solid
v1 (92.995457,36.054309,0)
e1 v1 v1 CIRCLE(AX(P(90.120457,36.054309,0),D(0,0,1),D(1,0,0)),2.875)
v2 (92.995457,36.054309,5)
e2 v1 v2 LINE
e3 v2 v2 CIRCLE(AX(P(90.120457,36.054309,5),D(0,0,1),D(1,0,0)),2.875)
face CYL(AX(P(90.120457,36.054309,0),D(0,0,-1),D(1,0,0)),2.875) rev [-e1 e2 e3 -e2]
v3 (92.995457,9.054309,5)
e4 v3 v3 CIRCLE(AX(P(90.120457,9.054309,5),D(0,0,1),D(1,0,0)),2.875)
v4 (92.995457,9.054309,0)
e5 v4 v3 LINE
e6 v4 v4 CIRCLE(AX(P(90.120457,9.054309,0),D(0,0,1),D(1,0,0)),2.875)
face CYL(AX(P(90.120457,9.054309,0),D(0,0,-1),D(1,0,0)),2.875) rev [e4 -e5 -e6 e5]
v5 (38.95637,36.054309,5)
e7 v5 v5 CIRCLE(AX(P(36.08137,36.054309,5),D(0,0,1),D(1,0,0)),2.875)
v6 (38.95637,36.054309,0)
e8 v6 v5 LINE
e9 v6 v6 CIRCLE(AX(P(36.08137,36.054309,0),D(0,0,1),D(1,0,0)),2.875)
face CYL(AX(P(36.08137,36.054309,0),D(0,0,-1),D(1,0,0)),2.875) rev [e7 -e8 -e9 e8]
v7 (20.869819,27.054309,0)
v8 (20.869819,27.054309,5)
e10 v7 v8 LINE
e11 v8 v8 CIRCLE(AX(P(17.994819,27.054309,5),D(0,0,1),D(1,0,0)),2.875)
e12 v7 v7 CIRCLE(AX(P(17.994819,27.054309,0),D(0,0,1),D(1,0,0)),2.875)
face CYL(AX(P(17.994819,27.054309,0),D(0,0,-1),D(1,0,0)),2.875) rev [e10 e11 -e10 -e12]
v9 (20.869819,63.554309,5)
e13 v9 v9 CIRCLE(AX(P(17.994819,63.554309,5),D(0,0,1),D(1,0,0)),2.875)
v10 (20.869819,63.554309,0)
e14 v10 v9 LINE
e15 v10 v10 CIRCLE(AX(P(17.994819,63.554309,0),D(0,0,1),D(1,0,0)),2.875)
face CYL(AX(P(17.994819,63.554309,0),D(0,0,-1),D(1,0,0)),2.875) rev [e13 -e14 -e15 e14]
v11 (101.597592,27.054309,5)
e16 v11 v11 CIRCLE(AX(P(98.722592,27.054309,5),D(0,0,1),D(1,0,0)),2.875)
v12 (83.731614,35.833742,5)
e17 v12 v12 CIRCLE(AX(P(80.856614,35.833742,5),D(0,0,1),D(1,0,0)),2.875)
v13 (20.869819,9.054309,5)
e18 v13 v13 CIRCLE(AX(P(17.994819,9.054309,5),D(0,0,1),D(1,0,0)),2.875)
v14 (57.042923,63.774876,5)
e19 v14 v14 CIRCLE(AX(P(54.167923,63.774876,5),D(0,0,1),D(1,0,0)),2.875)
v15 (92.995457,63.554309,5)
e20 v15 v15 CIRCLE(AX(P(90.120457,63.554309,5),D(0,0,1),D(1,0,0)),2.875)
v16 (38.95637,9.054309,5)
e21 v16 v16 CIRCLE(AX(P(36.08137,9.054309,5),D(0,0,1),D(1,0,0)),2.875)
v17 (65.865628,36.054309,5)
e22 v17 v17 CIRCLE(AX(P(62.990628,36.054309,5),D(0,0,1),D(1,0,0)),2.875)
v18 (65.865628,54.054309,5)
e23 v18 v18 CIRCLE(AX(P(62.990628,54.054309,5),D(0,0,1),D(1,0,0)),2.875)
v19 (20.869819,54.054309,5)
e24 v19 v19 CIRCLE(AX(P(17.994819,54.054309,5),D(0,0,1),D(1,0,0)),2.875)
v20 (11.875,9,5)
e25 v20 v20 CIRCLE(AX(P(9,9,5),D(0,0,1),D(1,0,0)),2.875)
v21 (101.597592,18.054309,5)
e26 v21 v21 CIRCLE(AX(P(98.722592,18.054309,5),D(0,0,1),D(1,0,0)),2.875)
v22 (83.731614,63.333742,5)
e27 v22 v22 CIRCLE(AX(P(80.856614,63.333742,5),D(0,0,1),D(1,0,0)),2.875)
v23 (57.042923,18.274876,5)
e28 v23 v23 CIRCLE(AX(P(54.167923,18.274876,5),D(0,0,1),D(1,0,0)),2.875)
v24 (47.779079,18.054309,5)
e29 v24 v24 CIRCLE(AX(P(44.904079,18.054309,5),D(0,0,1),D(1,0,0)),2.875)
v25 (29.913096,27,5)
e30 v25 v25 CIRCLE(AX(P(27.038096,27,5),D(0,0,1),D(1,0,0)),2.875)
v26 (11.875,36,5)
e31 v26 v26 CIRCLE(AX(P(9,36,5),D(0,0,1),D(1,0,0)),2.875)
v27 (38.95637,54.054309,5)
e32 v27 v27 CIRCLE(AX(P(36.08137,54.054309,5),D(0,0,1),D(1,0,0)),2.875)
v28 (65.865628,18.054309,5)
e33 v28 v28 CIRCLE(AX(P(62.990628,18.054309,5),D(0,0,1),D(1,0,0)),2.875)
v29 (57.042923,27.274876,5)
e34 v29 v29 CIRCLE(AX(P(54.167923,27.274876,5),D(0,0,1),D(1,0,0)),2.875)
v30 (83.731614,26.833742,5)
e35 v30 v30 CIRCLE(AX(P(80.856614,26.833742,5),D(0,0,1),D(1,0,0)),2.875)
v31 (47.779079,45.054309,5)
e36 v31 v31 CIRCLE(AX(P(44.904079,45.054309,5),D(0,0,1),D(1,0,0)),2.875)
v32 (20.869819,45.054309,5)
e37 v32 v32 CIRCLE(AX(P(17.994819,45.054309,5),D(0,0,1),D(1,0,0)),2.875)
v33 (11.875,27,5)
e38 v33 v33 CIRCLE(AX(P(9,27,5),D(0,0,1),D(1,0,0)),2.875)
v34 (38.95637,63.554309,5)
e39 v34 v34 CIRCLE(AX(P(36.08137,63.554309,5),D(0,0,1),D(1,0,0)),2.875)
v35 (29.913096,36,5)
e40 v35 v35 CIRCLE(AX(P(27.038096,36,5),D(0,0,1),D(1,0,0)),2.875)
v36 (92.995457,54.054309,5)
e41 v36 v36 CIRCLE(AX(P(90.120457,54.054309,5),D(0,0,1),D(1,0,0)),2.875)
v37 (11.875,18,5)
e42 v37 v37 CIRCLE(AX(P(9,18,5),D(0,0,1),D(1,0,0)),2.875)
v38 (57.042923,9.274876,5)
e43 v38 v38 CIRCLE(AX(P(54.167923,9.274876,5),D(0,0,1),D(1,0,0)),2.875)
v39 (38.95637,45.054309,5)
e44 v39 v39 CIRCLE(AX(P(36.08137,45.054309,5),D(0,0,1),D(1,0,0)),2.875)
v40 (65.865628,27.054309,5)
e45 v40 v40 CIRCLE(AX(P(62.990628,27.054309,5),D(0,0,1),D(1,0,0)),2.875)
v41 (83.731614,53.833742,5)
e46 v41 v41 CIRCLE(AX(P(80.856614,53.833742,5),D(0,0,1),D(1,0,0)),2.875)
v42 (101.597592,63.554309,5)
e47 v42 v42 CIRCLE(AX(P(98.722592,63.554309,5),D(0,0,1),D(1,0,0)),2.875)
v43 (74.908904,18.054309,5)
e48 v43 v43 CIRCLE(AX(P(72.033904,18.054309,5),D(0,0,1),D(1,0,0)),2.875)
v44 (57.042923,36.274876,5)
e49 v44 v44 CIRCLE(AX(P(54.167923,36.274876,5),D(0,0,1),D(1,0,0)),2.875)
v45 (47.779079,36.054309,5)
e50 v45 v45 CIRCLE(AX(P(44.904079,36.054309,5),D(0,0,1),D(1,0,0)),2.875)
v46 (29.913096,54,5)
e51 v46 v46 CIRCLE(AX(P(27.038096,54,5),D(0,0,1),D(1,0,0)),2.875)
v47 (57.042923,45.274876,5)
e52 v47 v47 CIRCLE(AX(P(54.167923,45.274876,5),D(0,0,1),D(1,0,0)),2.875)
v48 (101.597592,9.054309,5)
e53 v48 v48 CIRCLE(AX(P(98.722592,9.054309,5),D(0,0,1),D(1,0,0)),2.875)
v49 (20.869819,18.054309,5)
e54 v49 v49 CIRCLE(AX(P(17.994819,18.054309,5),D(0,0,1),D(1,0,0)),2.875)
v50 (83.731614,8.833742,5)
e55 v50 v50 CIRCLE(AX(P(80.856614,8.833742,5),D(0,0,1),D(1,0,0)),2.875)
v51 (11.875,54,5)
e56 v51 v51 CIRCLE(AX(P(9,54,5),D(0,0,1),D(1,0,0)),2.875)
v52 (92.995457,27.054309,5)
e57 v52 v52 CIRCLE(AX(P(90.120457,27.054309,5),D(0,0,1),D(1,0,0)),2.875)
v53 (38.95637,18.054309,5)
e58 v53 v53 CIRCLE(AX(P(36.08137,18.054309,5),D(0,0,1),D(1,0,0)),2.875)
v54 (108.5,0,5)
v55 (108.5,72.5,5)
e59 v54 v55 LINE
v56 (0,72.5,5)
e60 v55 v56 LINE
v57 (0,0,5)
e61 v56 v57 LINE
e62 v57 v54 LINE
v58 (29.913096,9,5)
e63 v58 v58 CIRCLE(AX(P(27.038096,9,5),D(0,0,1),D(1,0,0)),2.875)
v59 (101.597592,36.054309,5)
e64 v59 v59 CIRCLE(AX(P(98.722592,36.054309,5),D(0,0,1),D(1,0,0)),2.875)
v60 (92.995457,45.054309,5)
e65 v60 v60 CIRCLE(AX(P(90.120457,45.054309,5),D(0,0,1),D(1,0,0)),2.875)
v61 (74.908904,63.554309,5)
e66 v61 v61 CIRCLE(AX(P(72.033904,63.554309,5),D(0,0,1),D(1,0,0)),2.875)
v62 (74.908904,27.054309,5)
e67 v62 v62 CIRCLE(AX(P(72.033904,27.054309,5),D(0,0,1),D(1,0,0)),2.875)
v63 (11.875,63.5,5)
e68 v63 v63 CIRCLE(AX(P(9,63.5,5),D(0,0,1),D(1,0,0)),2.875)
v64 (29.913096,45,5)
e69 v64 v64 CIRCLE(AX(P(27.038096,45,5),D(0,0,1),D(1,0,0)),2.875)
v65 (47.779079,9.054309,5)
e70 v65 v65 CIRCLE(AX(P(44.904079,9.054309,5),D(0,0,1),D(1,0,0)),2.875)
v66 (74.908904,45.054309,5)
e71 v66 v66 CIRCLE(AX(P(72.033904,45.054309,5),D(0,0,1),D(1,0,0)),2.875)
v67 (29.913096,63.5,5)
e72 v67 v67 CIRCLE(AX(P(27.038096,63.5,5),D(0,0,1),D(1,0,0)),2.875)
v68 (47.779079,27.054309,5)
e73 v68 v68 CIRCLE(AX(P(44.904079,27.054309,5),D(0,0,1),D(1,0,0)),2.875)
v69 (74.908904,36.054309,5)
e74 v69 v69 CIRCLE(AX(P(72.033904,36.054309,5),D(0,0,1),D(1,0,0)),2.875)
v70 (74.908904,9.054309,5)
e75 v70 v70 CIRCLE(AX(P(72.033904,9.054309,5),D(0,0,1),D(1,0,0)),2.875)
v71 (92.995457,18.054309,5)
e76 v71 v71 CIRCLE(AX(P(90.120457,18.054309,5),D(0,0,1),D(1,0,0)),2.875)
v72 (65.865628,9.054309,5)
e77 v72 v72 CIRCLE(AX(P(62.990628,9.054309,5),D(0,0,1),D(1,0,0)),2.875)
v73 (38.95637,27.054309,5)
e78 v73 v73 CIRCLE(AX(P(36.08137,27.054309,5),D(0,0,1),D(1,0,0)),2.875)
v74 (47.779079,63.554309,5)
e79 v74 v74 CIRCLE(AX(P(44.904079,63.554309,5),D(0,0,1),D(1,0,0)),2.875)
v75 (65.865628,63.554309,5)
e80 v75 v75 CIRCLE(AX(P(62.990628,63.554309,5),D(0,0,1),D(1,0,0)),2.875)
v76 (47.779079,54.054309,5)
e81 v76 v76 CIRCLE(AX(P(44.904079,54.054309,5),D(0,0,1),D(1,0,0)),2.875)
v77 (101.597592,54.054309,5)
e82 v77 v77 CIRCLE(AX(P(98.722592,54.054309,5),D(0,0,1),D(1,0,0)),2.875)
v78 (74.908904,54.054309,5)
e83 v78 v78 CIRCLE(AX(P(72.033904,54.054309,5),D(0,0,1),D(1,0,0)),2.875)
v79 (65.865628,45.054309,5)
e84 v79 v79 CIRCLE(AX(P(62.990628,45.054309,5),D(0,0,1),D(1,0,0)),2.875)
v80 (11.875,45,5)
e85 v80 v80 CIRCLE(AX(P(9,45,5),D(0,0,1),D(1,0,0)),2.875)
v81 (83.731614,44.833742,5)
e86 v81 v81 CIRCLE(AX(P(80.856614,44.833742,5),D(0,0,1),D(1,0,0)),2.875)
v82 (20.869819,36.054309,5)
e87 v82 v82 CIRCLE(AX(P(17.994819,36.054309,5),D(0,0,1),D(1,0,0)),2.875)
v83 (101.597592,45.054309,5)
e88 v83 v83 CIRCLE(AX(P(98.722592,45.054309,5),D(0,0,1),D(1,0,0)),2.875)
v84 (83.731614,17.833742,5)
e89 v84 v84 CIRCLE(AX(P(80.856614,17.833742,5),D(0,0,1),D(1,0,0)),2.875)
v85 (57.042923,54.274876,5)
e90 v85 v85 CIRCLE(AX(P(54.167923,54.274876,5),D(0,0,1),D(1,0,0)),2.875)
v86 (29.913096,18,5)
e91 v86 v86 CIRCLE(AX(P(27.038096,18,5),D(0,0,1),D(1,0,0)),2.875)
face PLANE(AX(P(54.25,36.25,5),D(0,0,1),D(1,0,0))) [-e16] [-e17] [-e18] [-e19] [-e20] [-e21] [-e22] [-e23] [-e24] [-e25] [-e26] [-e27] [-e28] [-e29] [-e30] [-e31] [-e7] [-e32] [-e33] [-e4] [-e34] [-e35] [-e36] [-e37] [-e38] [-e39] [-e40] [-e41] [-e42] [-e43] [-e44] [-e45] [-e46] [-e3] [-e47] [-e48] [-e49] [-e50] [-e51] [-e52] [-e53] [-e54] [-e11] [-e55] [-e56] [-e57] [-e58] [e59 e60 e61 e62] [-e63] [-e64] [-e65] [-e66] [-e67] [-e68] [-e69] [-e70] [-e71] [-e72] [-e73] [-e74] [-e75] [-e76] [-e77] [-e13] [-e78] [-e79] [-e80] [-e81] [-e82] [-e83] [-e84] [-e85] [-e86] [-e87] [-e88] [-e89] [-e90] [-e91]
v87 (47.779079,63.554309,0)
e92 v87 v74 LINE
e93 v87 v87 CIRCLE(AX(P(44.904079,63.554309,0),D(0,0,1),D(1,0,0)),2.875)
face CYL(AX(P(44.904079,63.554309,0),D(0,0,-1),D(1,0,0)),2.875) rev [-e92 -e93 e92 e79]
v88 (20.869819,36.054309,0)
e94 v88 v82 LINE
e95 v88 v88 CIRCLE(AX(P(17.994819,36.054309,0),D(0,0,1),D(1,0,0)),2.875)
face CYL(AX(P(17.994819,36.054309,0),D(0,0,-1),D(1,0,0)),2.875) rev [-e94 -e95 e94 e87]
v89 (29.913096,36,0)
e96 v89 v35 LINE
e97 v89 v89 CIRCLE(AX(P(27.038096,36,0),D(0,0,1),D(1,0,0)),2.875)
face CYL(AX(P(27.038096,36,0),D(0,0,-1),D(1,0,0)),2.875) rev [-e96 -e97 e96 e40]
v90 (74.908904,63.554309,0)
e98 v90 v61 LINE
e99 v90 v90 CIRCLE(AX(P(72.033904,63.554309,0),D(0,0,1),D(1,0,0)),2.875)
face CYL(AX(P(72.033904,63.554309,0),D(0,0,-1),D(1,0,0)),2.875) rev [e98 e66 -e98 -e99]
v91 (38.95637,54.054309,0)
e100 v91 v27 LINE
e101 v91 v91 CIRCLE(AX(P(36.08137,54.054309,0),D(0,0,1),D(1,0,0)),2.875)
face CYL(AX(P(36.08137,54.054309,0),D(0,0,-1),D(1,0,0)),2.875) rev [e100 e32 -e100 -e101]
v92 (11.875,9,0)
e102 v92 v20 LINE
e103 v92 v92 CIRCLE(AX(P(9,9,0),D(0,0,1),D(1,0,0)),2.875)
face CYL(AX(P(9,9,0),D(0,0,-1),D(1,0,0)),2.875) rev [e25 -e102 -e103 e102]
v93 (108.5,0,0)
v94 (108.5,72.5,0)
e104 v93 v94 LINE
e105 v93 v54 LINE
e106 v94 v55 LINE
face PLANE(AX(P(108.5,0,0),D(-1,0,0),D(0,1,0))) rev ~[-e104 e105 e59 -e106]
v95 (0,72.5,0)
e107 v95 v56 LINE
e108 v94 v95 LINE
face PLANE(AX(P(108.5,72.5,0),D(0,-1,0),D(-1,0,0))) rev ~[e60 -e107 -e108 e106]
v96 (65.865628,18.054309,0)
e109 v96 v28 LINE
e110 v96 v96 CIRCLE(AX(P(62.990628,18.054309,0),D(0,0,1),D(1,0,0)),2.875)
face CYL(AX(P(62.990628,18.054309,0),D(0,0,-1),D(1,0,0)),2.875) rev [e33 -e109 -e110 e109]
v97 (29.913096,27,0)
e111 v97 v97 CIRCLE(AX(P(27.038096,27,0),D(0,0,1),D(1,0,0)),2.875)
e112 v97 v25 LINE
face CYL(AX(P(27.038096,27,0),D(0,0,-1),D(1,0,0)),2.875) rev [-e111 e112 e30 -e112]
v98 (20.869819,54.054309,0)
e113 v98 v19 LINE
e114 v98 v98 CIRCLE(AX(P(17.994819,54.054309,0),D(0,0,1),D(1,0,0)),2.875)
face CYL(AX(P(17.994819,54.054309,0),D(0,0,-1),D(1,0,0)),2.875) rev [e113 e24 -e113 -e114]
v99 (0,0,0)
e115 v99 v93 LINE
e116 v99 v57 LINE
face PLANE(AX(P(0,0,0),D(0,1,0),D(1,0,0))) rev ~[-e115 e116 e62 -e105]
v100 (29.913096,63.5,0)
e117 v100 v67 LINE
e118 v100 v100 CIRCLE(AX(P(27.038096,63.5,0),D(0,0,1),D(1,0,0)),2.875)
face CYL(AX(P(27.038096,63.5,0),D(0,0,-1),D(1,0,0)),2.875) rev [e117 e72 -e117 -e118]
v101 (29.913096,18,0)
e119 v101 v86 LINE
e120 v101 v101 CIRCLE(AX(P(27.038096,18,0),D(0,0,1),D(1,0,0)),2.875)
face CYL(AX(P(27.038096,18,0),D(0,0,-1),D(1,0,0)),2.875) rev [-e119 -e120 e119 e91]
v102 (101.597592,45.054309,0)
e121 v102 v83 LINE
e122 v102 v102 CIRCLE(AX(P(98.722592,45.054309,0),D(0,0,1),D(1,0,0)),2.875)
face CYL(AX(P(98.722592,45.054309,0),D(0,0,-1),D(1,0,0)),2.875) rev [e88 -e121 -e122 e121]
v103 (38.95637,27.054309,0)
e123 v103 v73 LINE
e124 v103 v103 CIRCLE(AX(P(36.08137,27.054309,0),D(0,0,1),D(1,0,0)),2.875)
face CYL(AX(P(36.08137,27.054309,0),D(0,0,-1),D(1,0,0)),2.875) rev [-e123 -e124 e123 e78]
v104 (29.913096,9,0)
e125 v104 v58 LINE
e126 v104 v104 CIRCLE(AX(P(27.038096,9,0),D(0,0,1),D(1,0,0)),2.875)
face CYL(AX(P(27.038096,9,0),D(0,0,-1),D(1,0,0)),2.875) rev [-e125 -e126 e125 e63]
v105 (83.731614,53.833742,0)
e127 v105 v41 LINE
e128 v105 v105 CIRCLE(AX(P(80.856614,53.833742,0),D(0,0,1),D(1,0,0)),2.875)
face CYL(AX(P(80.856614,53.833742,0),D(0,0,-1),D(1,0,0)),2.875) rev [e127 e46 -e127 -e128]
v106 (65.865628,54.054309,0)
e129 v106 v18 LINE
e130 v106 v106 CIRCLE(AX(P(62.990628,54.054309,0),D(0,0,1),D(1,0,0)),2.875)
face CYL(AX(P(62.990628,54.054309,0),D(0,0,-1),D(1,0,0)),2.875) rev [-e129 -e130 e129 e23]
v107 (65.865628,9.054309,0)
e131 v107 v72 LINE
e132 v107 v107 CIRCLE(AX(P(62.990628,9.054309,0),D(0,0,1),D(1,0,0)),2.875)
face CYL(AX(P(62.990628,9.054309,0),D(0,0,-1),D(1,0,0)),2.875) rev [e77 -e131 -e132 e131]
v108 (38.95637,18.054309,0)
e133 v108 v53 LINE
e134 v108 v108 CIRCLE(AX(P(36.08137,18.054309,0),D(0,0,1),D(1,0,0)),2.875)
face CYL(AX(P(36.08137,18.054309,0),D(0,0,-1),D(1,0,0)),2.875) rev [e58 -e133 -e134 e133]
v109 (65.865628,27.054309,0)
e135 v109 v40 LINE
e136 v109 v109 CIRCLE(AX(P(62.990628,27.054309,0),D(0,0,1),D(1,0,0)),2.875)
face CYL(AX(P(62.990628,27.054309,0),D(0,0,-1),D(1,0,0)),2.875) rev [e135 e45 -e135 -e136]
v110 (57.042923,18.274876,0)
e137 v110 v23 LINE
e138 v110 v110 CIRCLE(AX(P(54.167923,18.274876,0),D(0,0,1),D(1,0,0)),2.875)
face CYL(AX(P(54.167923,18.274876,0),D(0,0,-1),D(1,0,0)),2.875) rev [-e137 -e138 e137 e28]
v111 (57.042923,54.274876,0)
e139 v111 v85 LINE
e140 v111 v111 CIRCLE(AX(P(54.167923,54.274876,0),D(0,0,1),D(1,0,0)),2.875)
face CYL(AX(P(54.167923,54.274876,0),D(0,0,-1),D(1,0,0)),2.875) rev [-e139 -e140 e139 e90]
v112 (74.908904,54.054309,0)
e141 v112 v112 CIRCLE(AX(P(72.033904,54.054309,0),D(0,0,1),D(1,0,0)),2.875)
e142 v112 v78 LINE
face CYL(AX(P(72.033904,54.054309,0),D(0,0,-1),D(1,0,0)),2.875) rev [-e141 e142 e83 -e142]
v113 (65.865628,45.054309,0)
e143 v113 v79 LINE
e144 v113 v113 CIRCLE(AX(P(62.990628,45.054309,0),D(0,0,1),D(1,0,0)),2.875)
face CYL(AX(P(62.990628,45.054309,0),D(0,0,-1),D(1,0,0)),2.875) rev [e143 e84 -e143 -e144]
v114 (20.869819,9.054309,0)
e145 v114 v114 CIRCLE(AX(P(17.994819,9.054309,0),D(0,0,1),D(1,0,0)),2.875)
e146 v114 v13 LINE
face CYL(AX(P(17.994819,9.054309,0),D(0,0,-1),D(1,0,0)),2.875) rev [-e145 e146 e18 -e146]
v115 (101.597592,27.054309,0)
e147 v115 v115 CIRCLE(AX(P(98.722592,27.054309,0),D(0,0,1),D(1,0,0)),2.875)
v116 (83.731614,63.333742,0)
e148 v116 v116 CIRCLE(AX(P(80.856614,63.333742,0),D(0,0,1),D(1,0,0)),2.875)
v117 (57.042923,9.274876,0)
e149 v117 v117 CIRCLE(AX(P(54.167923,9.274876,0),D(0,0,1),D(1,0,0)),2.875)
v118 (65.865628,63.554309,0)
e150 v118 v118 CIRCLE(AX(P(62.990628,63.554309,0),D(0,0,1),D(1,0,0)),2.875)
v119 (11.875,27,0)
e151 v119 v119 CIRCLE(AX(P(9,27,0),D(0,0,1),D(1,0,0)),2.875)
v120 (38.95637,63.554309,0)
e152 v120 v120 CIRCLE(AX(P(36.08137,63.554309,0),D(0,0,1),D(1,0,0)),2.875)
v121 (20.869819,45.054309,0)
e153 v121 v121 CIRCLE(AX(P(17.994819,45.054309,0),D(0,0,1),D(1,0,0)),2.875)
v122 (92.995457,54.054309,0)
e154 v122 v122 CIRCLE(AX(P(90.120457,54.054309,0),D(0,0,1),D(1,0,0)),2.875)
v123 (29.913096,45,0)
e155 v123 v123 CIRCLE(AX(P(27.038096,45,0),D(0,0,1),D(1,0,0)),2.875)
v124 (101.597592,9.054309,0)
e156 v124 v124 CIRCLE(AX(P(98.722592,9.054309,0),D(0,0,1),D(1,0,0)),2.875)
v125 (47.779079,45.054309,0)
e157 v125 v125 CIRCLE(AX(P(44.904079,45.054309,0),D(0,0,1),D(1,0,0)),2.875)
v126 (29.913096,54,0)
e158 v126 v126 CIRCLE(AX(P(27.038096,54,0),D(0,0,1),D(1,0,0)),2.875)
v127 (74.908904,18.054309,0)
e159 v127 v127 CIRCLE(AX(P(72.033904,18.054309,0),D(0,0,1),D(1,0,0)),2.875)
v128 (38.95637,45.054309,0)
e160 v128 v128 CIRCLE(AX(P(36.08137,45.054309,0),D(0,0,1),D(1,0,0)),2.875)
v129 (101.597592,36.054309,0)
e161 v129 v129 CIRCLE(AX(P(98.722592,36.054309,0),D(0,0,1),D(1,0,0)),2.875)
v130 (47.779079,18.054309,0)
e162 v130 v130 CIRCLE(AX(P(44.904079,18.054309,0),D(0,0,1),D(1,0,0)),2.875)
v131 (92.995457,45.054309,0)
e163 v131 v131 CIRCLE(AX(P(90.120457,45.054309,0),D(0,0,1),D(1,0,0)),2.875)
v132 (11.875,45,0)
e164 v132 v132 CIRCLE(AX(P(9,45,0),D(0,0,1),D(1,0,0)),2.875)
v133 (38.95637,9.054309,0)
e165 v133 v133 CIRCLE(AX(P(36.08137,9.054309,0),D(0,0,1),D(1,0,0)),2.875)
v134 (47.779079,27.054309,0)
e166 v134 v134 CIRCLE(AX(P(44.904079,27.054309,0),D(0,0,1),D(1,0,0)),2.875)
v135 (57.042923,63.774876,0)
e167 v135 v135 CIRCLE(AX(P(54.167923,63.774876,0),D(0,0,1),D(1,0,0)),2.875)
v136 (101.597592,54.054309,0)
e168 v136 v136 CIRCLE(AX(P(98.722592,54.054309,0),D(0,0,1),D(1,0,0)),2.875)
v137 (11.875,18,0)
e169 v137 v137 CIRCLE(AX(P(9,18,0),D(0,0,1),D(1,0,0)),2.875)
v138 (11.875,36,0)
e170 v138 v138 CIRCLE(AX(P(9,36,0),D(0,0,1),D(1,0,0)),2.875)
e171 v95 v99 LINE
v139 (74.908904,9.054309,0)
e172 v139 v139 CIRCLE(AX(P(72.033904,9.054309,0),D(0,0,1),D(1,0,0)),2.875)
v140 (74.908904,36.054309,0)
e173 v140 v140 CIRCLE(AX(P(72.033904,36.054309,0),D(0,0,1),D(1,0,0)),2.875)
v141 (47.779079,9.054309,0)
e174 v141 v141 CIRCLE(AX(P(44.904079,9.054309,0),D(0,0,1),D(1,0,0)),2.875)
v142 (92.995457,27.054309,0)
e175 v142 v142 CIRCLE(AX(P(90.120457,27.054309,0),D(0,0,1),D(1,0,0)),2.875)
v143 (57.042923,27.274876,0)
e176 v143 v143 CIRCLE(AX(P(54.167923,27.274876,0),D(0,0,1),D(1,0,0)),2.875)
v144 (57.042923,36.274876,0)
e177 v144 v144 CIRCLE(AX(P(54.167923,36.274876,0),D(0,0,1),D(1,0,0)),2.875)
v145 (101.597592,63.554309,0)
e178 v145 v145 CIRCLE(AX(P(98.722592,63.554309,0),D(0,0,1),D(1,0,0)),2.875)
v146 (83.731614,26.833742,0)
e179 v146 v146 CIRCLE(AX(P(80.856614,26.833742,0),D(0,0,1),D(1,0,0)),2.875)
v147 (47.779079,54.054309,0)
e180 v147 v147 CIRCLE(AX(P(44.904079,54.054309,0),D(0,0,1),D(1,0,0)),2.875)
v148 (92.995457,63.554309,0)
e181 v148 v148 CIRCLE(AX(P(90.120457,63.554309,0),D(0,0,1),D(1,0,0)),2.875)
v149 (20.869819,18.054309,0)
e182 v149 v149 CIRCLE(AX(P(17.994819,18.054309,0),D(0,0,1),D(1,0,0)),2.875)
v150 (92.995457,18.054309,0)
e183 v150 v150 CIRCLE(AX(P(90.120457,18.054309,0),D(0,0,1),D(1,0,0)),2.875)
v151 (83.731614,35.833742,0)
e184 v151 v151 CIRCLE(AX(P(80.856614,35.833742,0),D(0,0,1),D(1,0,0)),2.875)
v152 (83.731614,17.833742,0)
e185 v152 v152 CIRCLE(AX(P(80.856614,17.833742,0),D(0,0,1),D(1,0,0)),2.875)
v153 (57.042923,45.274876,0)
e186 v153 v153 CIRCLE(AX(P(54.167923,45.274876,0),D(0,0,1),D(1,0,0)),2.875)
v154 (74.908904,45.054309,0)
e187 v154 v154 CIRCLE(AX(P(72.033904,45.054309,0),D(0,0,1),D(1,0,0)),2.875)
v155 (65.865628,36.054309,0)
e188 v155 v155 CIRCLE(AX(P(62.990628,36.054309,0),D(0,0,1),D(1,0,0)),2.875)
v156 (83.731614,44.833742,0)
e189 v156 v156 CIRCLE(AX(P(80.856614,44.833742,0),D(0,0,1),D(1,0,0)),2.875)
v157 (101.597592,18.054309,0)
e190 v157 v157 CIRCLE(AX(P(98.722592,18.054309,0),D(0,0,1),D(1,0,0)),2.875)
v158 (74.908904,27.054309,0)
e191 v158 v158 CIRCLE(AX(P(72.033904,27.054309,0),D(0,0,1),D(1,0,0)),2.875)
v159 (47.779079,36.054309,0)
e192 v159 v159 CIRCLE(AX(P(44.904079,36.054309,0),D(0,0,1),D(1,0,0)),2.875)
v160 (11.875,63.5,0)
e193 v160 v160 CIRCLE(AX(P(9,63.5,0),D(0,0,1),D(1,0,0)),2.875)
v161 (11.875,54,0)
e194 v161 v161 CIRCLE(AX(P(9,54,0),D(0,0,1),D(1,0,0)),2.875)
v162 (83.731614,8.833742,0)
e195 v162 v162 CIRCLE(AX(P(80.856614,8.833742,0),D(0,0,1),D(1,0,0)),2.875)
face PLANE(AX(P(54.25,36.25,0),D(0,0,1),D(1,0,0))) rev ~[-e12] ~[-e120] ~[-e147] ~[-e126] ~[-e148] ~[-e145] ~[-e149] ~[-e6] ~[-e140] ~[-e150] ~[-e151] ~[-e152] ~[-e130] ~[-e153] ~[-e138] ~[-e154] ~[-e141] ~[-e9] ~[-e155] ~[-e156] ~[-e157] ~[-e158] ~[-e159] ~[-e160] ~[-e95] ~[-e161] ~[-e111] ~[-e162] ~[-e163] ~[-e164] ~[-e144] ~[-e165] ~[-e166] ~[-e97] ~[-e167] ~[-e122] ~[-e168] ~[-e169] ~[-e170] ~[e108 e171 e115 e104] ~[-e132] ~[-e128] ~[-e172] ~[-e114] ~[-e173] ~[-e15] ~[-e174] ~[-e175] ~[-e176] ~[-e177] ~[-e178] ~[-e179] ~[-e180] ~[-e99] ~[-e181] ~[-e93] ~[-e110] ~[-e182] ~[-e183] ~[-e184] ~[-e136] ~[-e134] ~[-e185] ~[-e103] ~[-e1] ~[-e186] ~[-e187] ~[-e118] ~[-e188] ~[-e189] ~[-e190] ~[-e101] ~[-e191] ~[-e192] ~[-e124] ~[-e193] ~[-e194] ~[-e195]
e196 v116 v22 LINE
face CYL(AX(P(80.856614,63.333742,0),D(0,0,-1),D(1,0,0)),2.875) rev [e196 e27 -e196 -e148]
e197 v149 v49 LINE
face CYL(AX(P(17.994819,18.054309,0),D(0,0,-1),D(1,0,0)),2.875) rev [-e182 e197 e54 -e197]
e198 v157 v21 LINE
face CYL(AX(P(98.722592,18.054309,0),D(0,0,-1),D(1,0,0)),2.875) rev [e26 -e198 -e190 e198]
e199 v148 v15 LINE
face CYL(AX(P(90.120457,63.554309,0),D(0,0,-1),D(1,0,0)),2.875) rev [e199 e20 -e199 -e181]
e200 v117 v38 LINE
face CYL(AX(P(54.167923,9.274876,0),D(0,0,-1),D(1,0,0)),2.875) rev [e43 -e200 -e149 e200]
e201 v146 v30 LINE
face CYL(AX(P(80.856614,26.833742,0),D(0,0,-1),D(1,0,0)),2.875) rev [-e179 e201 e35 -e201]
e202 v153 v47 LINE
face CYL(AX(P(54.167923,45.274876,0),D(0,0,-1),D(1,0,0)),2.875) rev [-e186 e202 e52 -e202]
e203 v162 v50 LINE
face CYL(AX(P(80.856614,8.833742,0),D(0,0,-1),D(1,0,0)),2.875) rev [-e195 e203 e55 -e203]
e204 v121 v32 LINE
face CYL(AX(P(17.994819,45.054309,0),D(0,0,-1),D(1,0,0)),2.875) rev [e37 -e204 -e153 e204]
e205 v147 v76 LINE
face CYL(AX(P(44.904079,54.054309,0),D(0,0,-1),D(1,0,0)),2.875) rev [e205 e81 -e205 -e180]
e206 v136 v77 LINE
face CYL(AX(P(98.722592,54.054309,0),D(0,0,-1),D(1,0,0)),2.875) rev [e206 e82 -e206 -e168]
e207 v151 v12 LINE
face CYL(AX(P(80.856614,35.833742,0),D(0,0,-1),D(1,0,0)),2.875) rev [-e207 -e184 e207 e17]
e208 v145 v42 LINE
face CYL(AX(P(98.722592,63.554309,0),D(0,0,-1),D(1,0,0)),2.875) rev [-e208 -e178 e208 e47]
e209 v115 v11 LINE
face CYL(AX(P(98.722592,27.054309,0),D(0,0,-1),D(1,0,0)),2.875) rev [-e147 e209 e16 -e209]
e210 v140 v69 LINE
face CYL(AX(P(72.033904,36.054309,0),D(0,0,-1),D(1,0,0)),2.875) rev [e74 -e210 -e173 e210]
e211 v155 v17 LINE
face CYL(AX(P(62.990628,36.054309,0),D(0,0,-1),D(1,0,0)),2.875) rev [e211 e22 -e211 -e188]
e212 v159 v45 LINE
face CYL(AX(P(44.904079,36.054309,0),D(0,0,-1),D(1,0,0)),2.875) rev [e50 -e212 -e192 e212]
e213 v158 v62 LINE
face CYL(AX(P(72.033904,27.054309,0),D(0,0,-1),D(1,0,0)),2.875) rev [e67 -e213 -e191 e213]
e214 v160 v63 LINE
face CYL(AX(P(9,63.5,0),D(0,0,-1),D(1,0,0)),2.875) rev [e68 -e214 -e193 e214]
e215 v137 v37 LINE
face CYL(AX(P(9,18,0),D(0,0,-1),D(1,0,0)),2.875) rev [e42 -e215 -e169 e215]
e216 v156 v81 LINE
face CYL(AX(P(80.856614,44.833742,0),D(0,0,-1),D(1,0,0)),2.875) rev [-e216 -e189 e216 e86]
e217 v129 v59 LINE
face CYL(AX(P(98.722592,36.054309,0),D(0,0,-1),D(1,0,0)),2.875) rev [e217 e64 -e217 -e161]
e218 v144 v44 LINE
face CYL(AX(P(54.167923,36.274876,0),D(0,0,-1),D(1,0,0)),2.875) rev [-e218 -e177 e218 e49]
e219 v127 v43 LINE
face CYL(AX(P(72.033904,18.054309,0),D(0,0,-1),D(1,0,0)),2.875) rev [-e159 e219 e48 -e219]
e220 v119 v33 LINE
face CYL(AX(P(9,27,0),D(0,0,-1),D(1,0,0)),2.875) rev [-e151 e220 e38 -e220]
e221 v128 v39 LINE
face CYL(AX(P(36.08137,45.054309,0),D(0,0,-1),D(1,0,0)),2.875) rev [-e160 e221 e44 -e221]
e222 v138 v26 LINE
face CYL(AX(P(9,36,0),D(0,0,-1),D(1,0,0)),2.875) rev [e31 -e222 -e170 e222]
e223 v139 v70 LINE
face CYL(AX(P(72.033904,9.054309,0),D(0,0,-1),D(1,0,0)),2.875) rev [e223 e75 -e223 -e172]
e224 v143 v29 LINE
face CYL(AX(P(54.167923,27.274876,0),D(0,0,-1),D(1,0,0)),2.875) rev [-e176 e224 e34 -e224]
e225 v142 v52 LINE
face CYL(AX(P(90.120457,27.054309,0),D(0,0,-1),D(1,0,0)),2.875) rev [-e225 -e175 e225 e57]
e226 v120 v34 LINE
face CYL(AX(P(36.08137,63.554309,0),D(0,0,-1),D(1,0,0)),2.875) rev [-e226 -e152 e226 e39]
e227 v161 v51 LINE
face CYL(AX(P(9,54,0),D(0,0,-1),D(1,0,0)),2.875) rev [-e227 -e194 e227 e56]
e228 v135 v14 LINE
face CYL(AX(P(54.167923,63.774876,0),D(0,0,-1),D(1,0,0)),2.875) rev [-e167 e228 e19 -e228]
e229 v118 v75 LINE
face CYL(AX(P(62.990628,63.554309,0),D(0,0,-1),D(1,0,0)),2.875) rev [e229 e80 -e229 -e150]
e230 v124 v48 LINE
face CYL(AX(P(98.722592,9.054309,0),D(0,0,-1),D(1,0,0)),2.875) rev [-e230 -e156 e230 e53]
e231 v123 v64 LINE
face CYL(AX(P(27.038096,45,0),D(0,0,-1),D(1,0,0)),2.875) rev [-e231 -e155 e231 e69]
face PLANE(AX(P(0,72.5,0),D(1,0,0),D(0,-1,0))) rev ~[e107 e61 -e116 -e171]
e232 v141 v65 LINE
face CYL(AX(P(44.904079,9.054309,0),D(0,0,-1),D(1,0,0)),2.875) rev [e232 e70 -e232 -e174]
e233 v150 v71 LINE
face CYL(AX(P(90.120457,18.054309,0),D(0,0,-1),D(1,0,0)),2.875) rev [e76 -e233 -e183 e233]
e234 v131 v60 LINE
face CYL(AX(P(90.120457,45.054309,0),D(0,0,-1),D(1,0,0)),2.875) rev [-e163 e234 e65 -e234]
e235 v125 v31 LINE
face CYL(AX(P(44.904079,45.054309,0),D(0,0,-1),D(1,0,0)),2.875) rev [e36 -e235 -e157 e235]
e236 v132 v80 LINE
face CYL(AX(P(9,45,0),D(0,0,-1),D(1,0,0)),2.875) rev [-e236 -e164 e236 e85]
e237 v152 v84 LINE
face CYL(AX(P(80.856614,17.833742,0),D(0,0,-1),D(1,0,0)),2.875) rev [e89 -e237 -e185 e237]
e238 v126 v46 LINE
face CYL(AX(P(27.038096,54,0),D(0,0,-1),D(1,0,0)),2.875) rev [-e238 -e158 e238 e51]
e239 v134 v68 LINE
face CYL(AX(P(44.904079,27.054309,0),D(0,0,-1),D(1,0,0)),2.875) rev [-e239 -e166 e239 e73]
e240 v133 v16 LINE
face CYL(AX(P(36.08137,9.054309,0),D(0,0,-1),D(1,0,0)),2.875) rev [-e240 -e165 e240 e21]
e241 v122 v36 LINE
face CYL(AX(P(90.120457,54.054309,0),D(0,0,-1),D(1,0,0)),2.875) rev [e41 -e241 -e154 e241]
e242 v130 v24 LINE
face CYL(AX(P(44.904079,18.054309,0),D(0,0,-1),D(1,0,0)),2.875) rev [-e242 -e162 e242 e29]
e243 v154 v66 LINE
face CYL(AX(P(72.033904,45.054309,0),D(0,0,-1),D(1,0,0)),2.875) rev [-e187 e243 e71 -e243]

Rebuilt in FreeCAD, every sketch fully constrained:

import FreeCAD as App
import Part
import Sketcher

doc = App.newDocument("Part")
params = doc.addObject("Spreadsheet::Sheet", "Params")
for row, (alias, value) in enumerate([
    ("sketch1_diameter", "5.75 mm"),
    ("sketch1_width", "108.5 mm"),
    ("sketch1_height", "72.5 mm"),
    ("pad1_length", "5 mm"),
], start=1):
    params.set(f"A{row}", alias)
    params.set(f"B{row}", "=" + value)
    params.setAlias(f"B{row}", alias)

body = doc.addObject("PartDesign::Body", "Body")

# Sketch on XY plane
sketch1 = body.newObject("Sketcher::SketchObject", "Sketch")
sketch1.AttachmentSupport = (doc.getObject("XY_Plane"), [""])
sketch1.MapMode = "FlatFace"
sketch1.addGeometry([
    Part.LineSegment(App.Vector(0, 0, 0), App.Vector(108.5, 0, 0)),  # 0
    Part.LineSegment(App.Vector(108.5, 0, 0), App.Vector(108.5, 72.5, 0)),  # 1
    Part.LineSegment(App.Vector(108.5, 72.5, 0), App.Vector(0, 72.5, 0)),  # 2
    Part.LineSegment(App.Vector(0, 72.5, 0), App.Vector(0, 0, 0)),  # 3
    Part.Circle(App.Vector(9, 9, 0), App.Vector(0, 0, 1), 2.9),  # 4
    Part.Circle(App.Vector(18, 9.1, 0), App.Vector(0, 0, 1), 2.9),  # 5
    Part.Circle(App.Vector(27, 9, 0), App.Vector(0, 0, 1), 2.9),  # 6
    Part.Circle(App.Vector(9, 18, 0), App.Vector(0, 0, 1), 2.9),  # 7
    Part.Circle(App.Vector(18, 18.1, 0), App.Vector(0, 0, 1), 2.9),  # 8
    Part.Circle(App.Vector(27, 18, 0), App.Vector(0, 0, 1), 2.9),  # 9
    Part.Circle(App.Vector(36.1, 9.1, 0), App.Vector(0, 0, 1), 2.9),  # 10
    Part.Circle(App.Vector(44.9, 9.1, 0), App.Vector(0, 0, 1), 2.9),  # 11
    Part.Circle(App.Vector(36.1, 18.1, 0), App.Vector(0, 0, 1), 2.9),  # 12
    Part.Circle(App.Vector(44.9, 18.1, 0), App.Vector(0, 0, 1), 2.9),  # 13
    Part.Circle(App.Vector(9, 27, 0), App.Vector(0, 0, 1), 2.9),  # 14
    Part.Circle(App.Vector(18, 27.1, 0), App.Vector(0, 0, 1), 2.9),  # 15
    Part.Circle(App.Vector(27, 27, 0), App.Vector(0, 0, 1), 2.9),  # 16
    Part.Circle(App.Vector(9, 36, 0), App.Vector(0, 0, 1), 2.9),  # 17
    Part.Circle(App.Vector(18, 36.1, 0), App.Vector(0, 0, 1), 2.9),  # 18
    Part.Circle(App.Vector(27, 36, 0), App.Vector(0, 0, 1), 2.9),  # 19
    Part.Circle(App.Vector(36.1, 27.1, 0), App.Vector(0, 0, 1), 2.9),  # 20
    Part.Circle(App.Vector(44.9, 27.1, 0), App.Vector(0, 0, 1), 2.9),  # 21
    Part.Circle(App.Vector(36.1, 36.1, 0), App.Vector(0, 0, 1), 2.9),  # 22
    Part.Circle(App.Vector(44.9, 36.1, 0), App.Vector(0, 0, 1), 2.9),  # 23
    Part.Circle(App.Vector(54.2, 9.3, 0), App.Vector(0, 0, 1), 2.9),  # 24
    Part.Circle(App.Vector(63, 9.1, 0), App.Vector(0, 0, 1), 2.9),  # 25
    Part.Circle(App.Vector(72, 9.1, 0), App.Vector(0, 0, 1), 2.9),  # 26
    Part.Circle(App.Vector(54.2, 18.3, 0), App.Vector(0, 0, 1), 2.9),  # 27
    Part.Circle(App.Vector(63, 18.1, 0), App.Vector(0, 0, 1), 2.9),  # 28
    Part.Circle(App.Vector(72, 18.1, 0), App.Vector(0, 0, 1), 2.9),  # 29
    Part.Circle(App.Vector(80.9, 8.8, 0), App.Vector(0, 0, 1), 2.9),  # 30
    Part.Circle(App.Vector(90.1, 9.1, 0), App.Vector(0, 0, 1), 2.9),  # 31
    Part.Circle(App.Vector(98.7, 9.1, 0), App.Vector(0, 0, 1), 2.9),  # 32
    Part.Circle(App.Vector(80.9, 17.8, 0), App.Vector(0, 0, 1), 2.9),  # 33
    Part.Circle(App.Vector(90.1, 18.1, 0), App.Vector(0, 0, 1), 2.9),  # 34
    Part.Circle(App.Vector(98.7, 18.1, 0), App.Vector(0, 0, 1), 2.9),  # 35
    Part.Circle(App.Vector(54.2, 27.3, 0), App.Vector(0, 0, 1), 2.9),  # 36
    Part.Circle(App.Vector(63, 27.1, 0), App.Vector(0, 0, 1), 2.9),  # 37
    Part.Circle(App.Vector(72, 27.1, 0), App.Vector(0, 0, 1), 2.9),  # 38
    Part.Circle(App.Vector(54.2, 36.3, 0), App.Vector(0, 0, 1), 2.9),  # 39
    Part.Circle(App.Vector(63, 36.1, 0), App.Vector(0, 0, 1), 2.9),  # 40
    Part.Circle(App.Vector(72, 36.1, 0), App.Vector(0, 0, 1), 2.9),  # 41
    Part.Circle(App.Vector(80.9, 26.8, 0), App.Vector(0, 0, 1), 2.9),  # 42
    Part.Circle(App.Vector(90.1, 27.1, 0), App.Vector(0, 0, 1), 2.9),  # 43
    Part.Circle(App.Vector(98.7, 27.1, 0), App.Vector(0, 0, 1), 2.9),  # 44
    Part.Circle(App.Vector(80.9, 35.8, 0), App.Vector(0, 0, 1), 2.9),  # 45
    Part.Circle(App.Vector(90.1, 36.1, 0), App.Vector(0, 0, 1), 2.9),  # 46
    Part.Circle(App.Vector(98.7, 36.1, 0), App.Vector(0, 0, 1), 2.9),  # 47
    Part.Circle(App.Vector(9, 45, 0), App.Vector(0, 0, 1), 2.9),  # 48
    Part.Circle(App.Vector(18, 45.1, 0), App.Vector(0, 0, 1), 2.9),  # 49
    Part.Circle(App.Vector(27, 45, 0), App.Vector(0, 0, 1), 2.9),  # 50
    Part.Circle(App.Vector(36.1, 45.1, 0), App.Vector(0, 0, 1), 2.9),  # 51
    Part.Circle(App.Vector(44.9, 45.1, 0), App.Vector(0, 0, 1), 2.9),  # 52
    Part.Circle(App.Vector(9, 54, 0), App.Vector(0, 0, 1), 2.9),  # 53
    Part.Circle(App.Vector(18, 54.1, 0), App.Vector(0, 0, 1), 2.9),  # 54
    Part.Circle(App.Vector(27, 54, 0), App.Vector(0, 0, 1), 2.9),  # 55
    Part.Circle(App.Vector(9, 63.5, 0), App.Vector(0, 0, 1), 2.9),  # 56
    Part.Circle(App.Vector(18, 63.6, 0), App.Vector(0, 0, 1), 2.9),  # 57
    Part.Circle(App.Vector(27, 63.5, 0), App.Vector(0, 0, 1), 2.9),  # 58
    Part.Circle(App.Vector(36.1, 54.1, 0), App.Vector(0, 0, 1), 2.9),  # 59
    Part.Circle(App.Vector(44.9, 54.1, 0), App.Vector(0, 0, 1), 2.9),  # 60
    Part.Circle(App.Vector(36.1, 63.6, 0), App.Vector(0, 0, 1), 2.9),  # 61
    Part.Circle(App.Vector(44.9, 63.6, 0), App.Vector(0, 0, 1), 2.9),  # 62
    Part.Circle(App.Vector(54.2, 45.3, 0), App.Vector(0, 0, 1), 2.9),  # 63
    Part.Circle(App.Vector(63, 45.1, 0), App.Vector(0, 0, 1), 2.9),  # 64
    Part.Circle(App.Vector(72, 45.1, 0), App.Vector(0, 0, 1), 2.9),  # 65
    Part.Circle(App.Vector(80.9, 44.8, 0), App.Vector(0, 0, 1), 2.9),  # 66
    Part.Circle(App.Vector(90.1, 45.1, 0), App.Vector(0, 0, 1), 2.9),  # 67
    Part.Circle(App.Vector(98.7, 45.1, 0), App.Vector(0, 0, 1), 2.9),  # 68
    Part.Circle(App.Vector(54.2, 54.3, 0), App.Vector(0, 0, 1), 2.9),  # 69
    Part.Circle(App.Vector(63, 54.1, 0), App.Vector(0, 0, 1), 2.9),  # 70
    Part.Circle(App.Vector(72, 54.1, 0), App.Vector(0, 0, 1), 2.9),  # 71
    Part.Circle(App.Vector(54.2, 63.8, 0), App.Vector(0, 0, 1), 2.9),  # 72
    Part.Circle(App.Vector(63, 63.6, 0), App.Vector(0, 0, 1), 2.9),  # 73
    Part.Circle(App.Vector(72, 63.6, 0), App.Vector(0, 0, 1), 2.9),  # 74
    Part.Circle(App.Vector(80.9, 53.8, 0), App.Vector(0, 0, 1), 2.9),  # 75
    Part.Circle(App.Vector(90.1, 54.1, 0), App.Vector(0, 0, 1), 2.9),  # 76
    Part.Circle(App.Vector(98.7, 54.1, 0), App.Vector(0, 0, 1), 2.9),  # 77
    Part.Circle(App.Vector(80.9, 63.3, 0), App.Vector(0, 0, 1), 2.9),  # 78
    Part.Circle(App.Vector(90.1, 63.6, 0), App.Vector(0, 0, 1), 2.9),  # 79
    Part.Circle(App.Vector(98.7, 63.6, 0), App.Vector(0, 0, 1), 2.9),  # 80
], False)
sketch1.addConstraint([
    Sketcher.Constraint("Coincident", 0, 2, 1, 1),
    Sketcher.Constraint("Coincident", 1, 2, 2, 1),
    Sketcher.Constraint("Coincident", 2, 2, 3, 1),
    Sketcher.Constraint("Coincident", 3, 2, 0, 1),
    Sketcher.Constraint("Horizontal", 0),
    Sketcher.Constraint("Vertical", 1),
    Sketcher.Constraint("Horizontal", 2),
    Sketcher.Constraint("Vertical", 3),
    Sketcher.Constraint("Coincident", 3, 2, -1, 1),
    Sketcher.Constraint("Equal", 4, 5),
    Sketcher.Constraint("Equal", 5, 6),
    Sketcher.Constraint("Equal", 6, 7),
    Sketcher.Constraint("Equal", 7, 8),
    Sketcher.Constraint("Equal", 8, 9),
    Sketcher.Constraint("Equal", 9, 10),
    Sketcher.Constraint("Equal", 10, 11),
    Sketcher.Constraint("Equal", 11, 12),
    Sketcher.Constraint("Equal", 12, 13),
    Sketcher.Constraint("Equal", 13, 14),
    Sketcher.Constraint("Equal", 14, 15),
    Sketcher.Constraint("Equal", 15, 16),
    Sketcher.Constraint("Equal", 16, 17),
    Sketcher.Constraint("Equal", 17, 18),
    Sketcher.Constraint("Equal", 18, 19),
    Sketcher.Constraint("Equal", 19, 20),
    Sketcher.Constraint("Equal", 20, 21),
    Sketcher.Constraint("Equal", 21, 22),
    Sketcher.Constraint("Equal", 22, 23),
    Sketcher.Constraint("Equal", 23, 24),
    Sketcher.Constraint("Equal", 24, 25),
    Sketcher.Constraint("Equal", 25, 26),
    Sketcher.Constraint("Equal", 26, 27),
    Sketcher.Constraint("Equal", 27, 28),
    Sketcher.Constraint("Equal", 28, 29),
    Sketcher.Constraint("Equal", 29, 30),
    Sketcher.Constraint("Equal", 30, 31),
    Sketcher.Constraint("Equal", 31, 32),
    Sketcher.Constraint("Equal", 32, 33),
    Sketcher.Constraint("Equal", 33, 34),
    Sketcher.Constraint("Equal", 34, 35),
    Sketcher.Constraint("Equal", 35, 36),
    Sketcher.Constraint("Equal", 36, 37),
    Sketcher.Constraint("Equal", 37, 38),
    Sketcher.Constraint("Equal", 38, 39),
    Sketcher.Constraint("Equal", 39, 40),
    Sketcher.Constraint("Equal", 40, 41),
    Sketcher.Constraint("Equal", 41, 42),
    Sketcher.Constraint("Equal", 42, 43),
    Sketcher.Constraint("Equal", 43, 44),
    Sketcher.Constraint("Equal", 44, 45),
    Sketcher.Constraint("Equal", 45, 46),
    Sketcher.Constraint("Equal", 46, 47),
    Sketcher.Constraint("Equal", 47, 48),
    Sketcher.Constraint("Equal", 48, 49),
    Sketcher.Constraint("Equal", 49, 50),
    Sketcher.Constraint("Equal", 50, 51),
    Sketcher.Constraint("Equal", 51, 52),
    Sketcher.Constraint("Equal", 52, 53),
    Sketcher.Constraint("Equal", 53, 54),
    Sketcher.Constraint("Equal", 54, 55),
    Sketcher.Constraint("Equal", 55, 56),
    Sketcher.Constraint("Equal", 56, 57),
    Sketcher.Constraint("Equal", 57, 58),
    Sketcher.Constraint("Equal", 58, 59),
    Sketcher.Constraint("Equal", 59, 60),
    Sketcher.Constraint("Equal", 60, 61),
    Sketcher.Constraint("Equal", 61, 62),
    Sketcher.Constraint("Equal", 62, 63),
    Sketcher.Constraint("Equal", 63, 64),
    Sketcher.Constraint("Equal", 64, 65),
    Sketcher.Constraint("Equal", 65, 66),
    Sketcher.Constraint("Equal", 66, 67),
    Sketcher.Constraint("Equal", 67, 68),
    Sketcher.Constraint("Equal", 68, 69),
    Sketcher.Constraint("Equal", 69, 70),
    Sketcher.Constraint("Equal", 70, 71),
    Sketcher.Constraint("Equal", 71, 72),
    Sketcher.Constraint("Equal", 72, 73),
    Sketcher.Constraint("Equal", 73, 74),
    Sketcher.Constraint("Equal", 74, 75),
    Sketcher.Constraint("Equal", 75, 76),
    Sketcher.Constraint("Equal", 76, 77),
    Sketcher.Constraint("Equal", 77, 78),
    Sketcher.Constraint("Equal", 78, 79),
    Sketcher.Constraint("Equal", 79, 80),
    Sketcher.Constraint("Horizontal", 4, 3, 6, 3),
    Sketcher.Constraint("Horizontal", 7, 3, 9, 3),
    Sketcher.Constraint("Horizontal", 5, 3, 10, 3),
    Sketcher.Constraint("Horizontal", 10, 3, 11, 3),
    Sketcher.Constraint("Horizontal", 8, 3, 12, 3),
    Sketcher.Constraint("Horizontal", 12, 3, 13, 3),
    Sketcher.Constraint("Horizontal", 14, 3, 16, 3),
    Sketcher.Constraint("Horizontal", 17, 3, 19, 3),
    Sketcher.Constraint("Horizontal", 15, 3, 20, 3),
    Sketcher.Constraint("Horizontal", 20, 3, 21, 3),
    Sketcher.Constraint("Horizontal", 18, 3, 22, 3),
    Sketcher.Constraint("Horizontal", 22, 3, 23, 3),
    Sketcher.Constraint("Horizontal", 11, 3, 25, 3),
    Sketcher.Constraint("Horizontal", 25, 3, 26, 3),
    Sketcher.Constraint("Horizontal", 13, 3, 28, 3),
    Sketcher.Constraint("Horizontal", 28, 3, 29, 3),
    Sketcher.Constraint("Horizontal", 26, 3, 31, 3),
    Sketcher.Constraint("Horizontal", 31, 3, 32, 3),
    Sketcher.Constraint("Horizontal", 29, 3, 34, 3),
    Sketcher.Constraint("Horizontal", 34, 3, 35, 3),
    Sketcher.Constraint("Horizontal", 21, 3, 37, 3),
    Sketcher.Constraint("Horizontal", 37, 3, 38, 3),
    Sketcher.Constraint("Horizontal", 23, 3, 40, 3),
    Sketcher.Constraint("Horizontal", 40, 3, 41, 3),
    Sketcher.Constraint("Horizontal", 38, 3, 43, 3),
    Sketcher.Constraint("Horizontal", 43, 3, 44, 3),
    Sketcher.Constraint("Horizontal", 41, 3, 46, 3),
    Sketcher.Constraint("Horizontal", 46, 3, 47, 3),
    Sketcher.Constraint("Horizontal", 48, 3, 50, 3),
    Sketcher.Constraint("Horizontal", 49, 3, 51, 3),
    Sketcher.Constraint("Horizontal", 51, 3, 52, 3),
    Sketcher.Constraint("Horizontal", 53, 3, 55, 3),
    Sketcher.Constraint("Horizontal", 56, 3, 58, 3),
    Sketcher.Constraint("Horizontal", 54, 3, 59, 3),
    Sketcher.Constraint("Horizontal", 59, 3, 60, 3),
    Sketcher.Constraint("Horizontal", 57, 3, 61, 3),
    Sketcher.Constraint("Horizontal", 61, 3, 62, 3),
    Sketcher.Constraint("Horizontal", 52, 3, 64, 3),
    Sketcher.Constraint("Horizontal", 64, 3, 65, 3),
    Sketcher.Constraint("Horizontal", 65, 3, 67, 3),
    Sketcher.Constraint("Horizontal", 67, 3, 68, 3),
    Sketcher.Constraint("Horizontal", 60, 3, 70, 3),
    Sketcher.Constraint("Horizontal", 70, 3, 71, 3),
    Sketcher.Constraint("Horizontal", 62, 3, 73, 3),
    Sketcher.Constraint("Horizontal", 73, 3, 74, 3),
    Sketcher.Constraint("Horizontal", 71, 3, 76, 3),
    Sketcher.Constraint("Horizontal", 76, 3, 77, 3),
    Sketcher.Constraint("Horizontal", 74, 3, 79, 3),
    Sketcher.Constraint("Horizontal", 79, 3, 80, 3),
    Sketcher.Constraint("Vertical", 4, 3, 7, 3),
    Sketcher.Constraint("Vertical", 5, 3, 8, 3),
    Sketcher.Constraint("Vertical", 6, 3, 9, 3),
    Sketcher.Constraint("Vertical", 10, 3, 12, 3),
    Sketcher.Constraint("Vertical", 11, 3, 13, 3),
    Sketcher.Constraint("Vertical", 7, 3, 14, 3),
    Sketcher.Constraint("Vertical", 8, 3, 15, 3),
    Sketcher.Constraint("Vertical", 9, 3, 16, 3),
    Sketcher.Constraint("Vertical", 14, 3, 17, 3),
    Sketcher.Constraint("Vertical", 15, 3, 18, 3),
    Sketcher.Constraint("Vertical", 16, 3, 19, 3),
    Sketcher.Constraint("Vertical", 12, 3, 20, 3),
    Sketcher.Constraint("Vertical", 13, 3, 21, 3),
    Sketcher.Constraint("Vertical", 20, 3, 22, 3),
    Sketcher.Constraint("Vertical", 21, 3, 23, 3),
    Sketcher.Constraint("Vertical", 24, 3, 27, 3),
    Sketcher.Constraint("Vertical", 25, 3, 28, 3),
    Sketcher.Constraint("Vertical", 26, 3, 29, 3),
    Sketcher.Constraint("Vertical", 30, 3, 33, 3),
    Sketcher.Constraint("Vertical", 31, 3, 34, 3),
    Sketcher.Constraint("Vertical", 32, 3, 35, 3),
    Sketcher.Constraint("Vertical", 27, 3, 36, 3),
    Sketcher.Constraint("Vertical", 28, 3, 37, 3),
    Sketcher.Constraint("Vertical", 29, 3, 38, 3),
    Sketcher.Constraint("Vertical", 36, 3, 39, 3),
    Sketcher.Constraint("Vertical", 37, 3, 40, 3),
    Sketcher.Constraint("Vertical", 38, 3, 41, 3),
    Sketcher.Constraint("Vertical", 33, 3, 42, 3),
    Sketcher.Constraint("Vertical", 34, 3, 43, 3),
    Sketcher.Constraint("Vertical", 35, 3, 44, 3),
    Sketcher.Constraint("Vertical", 42, 3, 45, 3),
    Sketcher.Constraint("Vertical", 43, 3, 46, 3),
    Sketcher.Constraint("Vertical", 44, 3, 47, 3),
    Sketcher.Constraint("Vertical", 17, 3, 48, 3),
    Sketcher.Constraint("Vertical", 18, 3, 49, 3),
    Sketcher.Constraint("Vertical", 19, 3, 50, 3),
    Sketcher.Constraint("Vertical", 22, 3, 51, 3),
    Sketcher.Constraint("Vertical", 23, 3, 52, 3),
    Sketcher.Constraint("Vertical", 48, 3, 53, 3),
    Sketcher.Constraint("Vertical", 49, 3, 54, 3),
    Sketcher.Constraint("Vertical", 50, 3, 55, 3),
    Sketcher.Constraint("Vertical", 53, 3, 56, 3),
    Sketcher.Constraint("Vertical", 54, 3, 57, 3),
    Sketcher.Constraint("Vertical", 55, 3, 58, 3),
    Sketcher.Constraint("Vertical", 51, 3, 59, 3),
    Sketcher.Constraint("Vertical", 52, 3, 60, 3),
    Sketcher.Constraint("Vertical", 59, 3, 61, 3),
    Sketcher.Constraint("Vertical", 60, 3, 62, 3),
    Sketcher.Constraint("Vertical", 39, 3, 63, 3),
    Sketcher.Constraint("Vertical", 40, 3, 64, 3),
    Sketcher.Constraint("Vertical", 41, 3, 65, 3),
    Sketcher.Constraint("Vertical", 45, 3, 66, 3),
    Sketcher.Constraint("Vertical", 46, 3, 67, 3),
    Sketcher.Constraint("Vertical", 47, 3, 68, 3),
    Sketcher.Constraint("Vertical", 63, 3, 69, 3),
    Sketcher.Constraint("Vertical", 64, 3, 70, 3),
    Sketcher.Constraint("Vertical", 65, 3, 71, 3),
    Sketcher.Constraint("Vertical", 69, 3, 72, 3),
    Sketcher.Constraint("Vertical", 70, 3, 73, 3),
    Sketcher.Constraint("Vertical", 71, 3, 74, 3),
    Sketcher.Constraint("Vertical", 66, 3, 75, 3),
    Sketcher.Constraint("Vertical", 67, 3, 76, 3),
    Sketcher.Constraint("Vertical", 68, 3, 77, 3),
    Sketcher.Constraint("Vertical", 75, 3, 78, 3),
    Sketcher.Constraint("Vertical", 76, 3, 79, 3),
    Sketcher.Constraint("Vertical", 77, 3, 80, 3),
    Sketcher.Constraint("Diameter", 4, 5.75),
    Sketcher.Constraint("DistanceX", 0, 1, 0, 2, 108.5),
    Sketcher.Constraint("DistanceY", 1, 1, 1, 2, 72.5),
    Sketcher.Constraint("DistanceX", -1, 1, 4, 3, 9.0),
    Sketcher.Constraint("DistanceY", -1, 1, 4, 3, 9.0),
    Sketcher.Constraint("DistanceY", -1, 1, 7, 3, 18.0),
    Sketcher.Constraint("DistanceY", -1, 1, 14, 3, 27.0),
    Sketcher.Constraint("DistanceY", -1, 1, 17, 3, 36.0),
    Sketcher.Constraint("DistanceY", -1, 1, 48, 3, 45.0),
    Sketcher.Constraint("DistanceY", -1, 1, 53, 3, 54.0),
    Sketcher.Constraint("DistanceY", -1, 1, 56, 3, 63.5),
    Sketcher.Constraint("DistanceX", -1, 1, 5, 3, 17.994819),
    Sketcher.Constraint("DistanceY", -1, 1, 5, 3, 9.054309),
    Sketcher.Constraint("DistanceY", -1, 1, 8, 3, 18.054309),
    Sketcher.Constraint("DistanceX", -1, 1, 10, 3, 36.08137),
    Sketcher.Constraint("DistanceX", -1, 1, 11, 3, 44.904079),
    Sketcher.Constraint("DistanceY", -1, 1, 15, 3, 27.054309),
    Sketcher.Constraint("DistanceY", -1, 1, 18, 3, 36.054309),
    Sketcher.Constraint("DistanceY", -1, 1, 49, 3, 45.054309),
    Sketcher.Constraint("DistanceY", -1, 1, 54, 3, 54.054309),
    Sketcher.Constraint("DistanceY", -1, 1, 57, 3, 63.554309),
    Sketcher.Constraint("DistanceX", -1, 1, 6, 3, 27.038096),
    Sketcher.Constraint("DistanceX", -1, 1, 24, 3, 54.167923),
    Sketcher.Constraint("DistanceY", -1, 1, 24, 3, 9.274876),
    Sketcher.Constraint("DistanceX", -1, 1, 25, 3, 62.990628),
    Sketcher.Constraint("DistanceX", -1, 1, 26, 3, 72.033904),
    Sketcher.Constraint("DistanceY", -1, 1, 27, 3, 18.274876),
    Sketcher.Constraint("DistanceX", -1, 1, 30, 3, 80.856614),
    Sketcher.Constraint("DistanceY", -1, 1, 30, 3, 8.833742),
    Sketcher.Constraint("DistanceX", -1, 1, 31, 3, 90.120457),
    Sketcher.Constraint("DistanceX", -1, 1, 32, 3, 98.722592),
    Sketcher.Constraint("DistanceY", -1, 1, 33, 3, 17.833742),
    Sketcher.Constraint("DistanceY", -1, 1, 36, 3, 27.274876),
    Sketcher.Constraint("DistanceY", -1, 1, 39, 3, 36.274876),
    Sketcher.Constraint("DistanceY", -1, 1, 42, 3, 26.833742),
    Sketcher.Constraint("DistanceY", -1, 1, 45, 3, 35.833742),
    Sketcher.Constraint("DistanceY", -1, 1, 63, 3, 45.274876),
    Sketcher.Constraint("DistanceY", -1, 1, 66, 3, 44.833742),
    Sketcher.Constraint("DistanceY", -1, 1, 69, 3, 54.274876),
    Sketcher.Constraint("DistanceY", -1, 1, 72, 3, 63.774876),
    Sketcher.Constraint("DistanceY", -1, 1, 75, 3, 53.833742),
    Sketcher.Constraint("DistanceY", -1, 1, 78, 3, 63.333742),
])
sketch1.setExpression("Constraints[200]", "Params.sketch1_diameter")
sketch1.setExpression("Constraints[201]", "Params.sketch1_width")
sketch1.setExpression("Constraints[202]", "Params.sketch1_height")
pad1 = body.newObject("PartDesign::Pad", "Pad")
pad1.Profile = sketch1
pad1.setExpression("Length", "Params.pad1_length")

doc.recompute()
